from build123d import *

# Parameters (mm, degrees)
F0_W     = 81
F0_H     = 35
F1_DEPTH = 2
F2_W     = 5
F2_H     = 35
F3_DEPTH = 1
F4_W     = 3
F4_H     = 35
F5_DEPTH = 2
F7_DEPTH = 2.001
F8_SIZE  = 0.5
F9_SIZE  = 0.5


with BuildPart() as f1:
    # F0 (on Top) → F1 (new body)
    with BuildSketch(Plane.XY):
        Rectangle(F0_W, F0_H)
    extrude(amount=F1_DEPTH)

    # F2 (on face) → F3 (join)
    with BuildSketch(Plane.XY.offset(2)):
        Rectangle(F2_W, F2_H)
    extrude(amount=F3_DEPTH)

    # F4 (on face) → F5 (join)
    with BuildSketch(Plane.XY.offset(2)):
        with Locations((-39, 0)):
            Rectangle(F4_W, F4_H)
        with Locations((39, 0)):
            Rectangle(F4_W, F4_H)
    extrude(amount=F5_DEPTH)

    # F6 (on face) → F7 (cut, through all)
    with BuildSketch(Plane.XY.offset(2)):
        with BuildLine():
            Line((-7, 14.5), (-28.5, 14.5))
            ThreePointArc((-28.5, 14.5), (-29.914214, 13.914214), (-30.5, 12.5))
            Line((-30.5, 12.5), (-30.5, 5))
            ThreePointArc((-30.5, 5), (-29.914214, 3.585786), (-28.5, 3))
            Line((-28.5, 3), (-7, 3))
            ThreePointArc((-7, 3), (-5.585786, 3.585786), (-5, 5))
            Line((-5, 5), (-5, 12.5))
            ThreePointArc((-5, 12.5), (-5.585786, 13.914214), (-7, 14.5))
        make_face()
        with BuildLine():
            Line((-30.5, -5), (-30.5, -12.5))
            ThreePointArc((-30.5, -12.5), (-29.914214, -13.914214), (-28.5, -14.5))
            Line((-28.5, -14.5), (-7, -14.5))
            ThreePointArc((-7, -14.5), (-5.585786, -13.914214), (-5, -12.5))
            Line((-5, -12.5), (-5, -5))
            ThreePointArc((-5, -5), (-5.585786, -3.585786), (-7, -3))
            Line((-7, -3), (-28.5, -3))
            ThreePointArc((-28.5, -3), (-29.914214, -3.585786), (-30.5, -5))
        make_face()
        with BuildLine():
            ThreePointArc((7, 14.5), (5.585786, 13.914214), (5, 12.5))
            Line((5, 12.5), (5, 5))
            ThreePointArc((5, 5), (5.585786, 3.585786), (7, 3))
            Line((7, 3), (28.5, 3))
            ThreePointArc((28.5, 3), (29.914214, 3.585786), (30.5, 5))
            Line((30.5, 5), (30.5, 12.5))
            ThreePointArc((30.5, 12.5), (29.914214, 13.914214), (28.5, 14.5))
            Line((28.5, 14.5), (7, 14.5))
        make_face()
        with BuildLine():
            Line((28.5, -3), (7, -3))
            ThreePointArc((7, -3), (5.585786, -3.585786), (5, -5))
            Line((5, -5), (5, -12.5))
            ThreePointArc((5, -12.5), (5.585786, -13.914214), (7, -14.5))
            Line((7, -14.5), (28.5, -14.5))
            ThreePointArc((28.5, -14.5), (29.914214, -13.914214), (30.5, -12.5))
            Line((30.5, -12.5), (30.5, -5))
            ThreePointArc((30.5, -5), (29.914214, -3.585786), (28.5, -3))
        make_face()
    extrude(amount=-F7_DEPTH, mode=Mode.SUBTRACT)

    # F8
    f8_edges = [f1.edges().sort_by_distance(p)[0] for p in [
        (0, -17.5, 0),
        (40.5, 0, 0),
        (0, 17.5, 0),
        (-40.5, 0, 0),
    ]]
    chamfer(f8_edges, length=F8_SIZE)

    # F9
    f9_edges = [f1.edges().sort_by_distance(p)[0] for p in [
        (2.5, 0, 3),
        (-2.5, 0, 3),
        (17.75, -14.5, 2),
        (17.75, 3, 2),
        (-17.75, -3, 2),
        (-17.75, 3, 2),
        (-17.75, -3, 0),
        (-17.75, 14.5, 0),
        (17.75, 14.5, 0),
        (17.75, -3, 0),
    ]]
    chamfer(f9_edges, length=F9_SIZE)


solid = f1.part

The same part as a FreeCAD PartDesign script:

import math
import FreeCAD as App
import Part
import Sketcher
Q = App.Units.Quantity


def edges_at(feature, points):
    """Names of the edges that pass closest to the given points."""
    edges = feature.Shape.Edges
    near = lambda p: min(range(len(edges)), key=lambda i: edges[i].distToShape(Part.Vertex(*p))[0])
    return sorted({f"Edge{near(p) + 1}" for p in points})


def add_polygon(sketch, points):
    """Adds a closed chain of lines whose ends are joined by coincident constraints."""
    first, n = sketch.GeometryCount, len(points)
    for a, b in zip(points, points[1:] + points[:1]):
        sketch.addGeometry(Part.LineSegment(App.Vector(*a, 0), App.Vector(*b, 0)), False)
    for i in range(n):
        sketch.addConstraint(Sketcher.Constraint("Coincident", first + i, 2, first + (i + 1) % n, 1))

doc = App.newDocument("Part")
body = doc.addObject("PartDesign::Body", "Body")

# Sketch on XY plane
sketch1 = doc.addObject("Sketcher::SketchObject", "Sketch")
body.addObject(sketch1)
sketch1.AttachmentSupport = (doc.XY_Plane, [""])
sketch1.MapMode = "FlatFace"
add_polygon(sketch1, [(-40, 18), (-40, -18), (40, -18), (40, 18)])  # lines 0-3
sketch1.addConstraint(Sketcher.Constraint("Vertical", 0))
sketch1.addConstraint(Sketcher.Constraint("Horizontal", 1))
sketch1.addConstraint(Sketcher.Constraint("Vertical", 2))
sketch1.addConstraint(Sketcher.Constraint("Horizontal", 3))
sketch1.addConstraint(Sketcher.Constraint("Symmetric", 0, 2, 2, 2, -1, 1))
sketch1.addConstraint(Sketcher.Constraint("DistanceX", 1, 1, 1, 2, Q("81 mm")))
sketch1.addConstraint(Sketcher.Constraint("DistanceY", 0, 2, 0, 1, Q("35 mm")))
pad1 = doc.addObject("PartDesign::Pad", "Pad")
body.addObject(pad1)
pad1.Profile = sketch1
pad1.Length = 2

# Sketch on XY plane
sketch2 = doc.addObject("Sketcher::SketchObject", "Sketch001")
body.addObject(sketch2)
sketch2.AttachmentSupport = (doc.XY_Plane, [""])
sketch2.MapMode = "FlatFace"
sketch2.AttachmentOffset = App.Placement(App.Vector(0, 0, 2), App.Rotation())
add_polygon(sketch2, [(-2, 18), (-2, -18), (2, -18), (2, 18)])  # lines 0-3
sketch2.addConstraint(Sketcher.Constraint("Vertical", 0))
sketch2.addConstraint(Sketcher.Constraint("Horizontal", 1))
sketch2.addConstraint(Sketcher.Constraint("Vertical", 2))
sketch2.addConstraint(Sketcher.Constraint("Horizontal", 3))
sketch2.addConstraint(Sketcher.Constraint("Symmetric", 0, 2, 2, 2, -1, 1))
sketch2.addConstraint(Sketcher.Constraint("DistanceX", 1, 1, 1, 2, Q("5 mm")))
sketch2.addConstraint(Sketcher.Constraint("DistanceY", 0, 2, 0, 1, Q("35 mm")))
pad2 = doc.addObject("PartDesign::Pad", "Pad001")
body.addObject(pad2)
pad2.Profile = sketch2
pad2.Length = 1

# Sketch on XY plane
sketch3 = doc.addObject("Sketcher::SketchObject", "Sketch002")
body.addObject(sketch3)
sketch3.AttachmentSupport = (doc.XY_Plane, [""])
sketch3.MapMode = "FlatFace"
sketch3.AttachmentOffset = App.Placement(App.Vector(0, 0, 2), App.Rotation())
add_polygon(sketch3, [(-40.5, 17.5), (-40.5, -17.5), (-37.5, -17.5), (-37.5, 17.5)])  # lines 0-3
add_polygon(sketch3, [(37.5, 17.5), (37.5, -17.5), (40.5, -17.5), (40.5, 17.5)])  # lines 4-7
sketch3.addConstraint(Sketcher.Constraint("Vertical", 0))
sketch3.addConstraint(Sketcher.Constraint("Horizontal", 1))
sketch3.addConstraint(Sketcher.Constraint("Vertical", 2))
sketch3.addConstraint(Sketcher.Constraint("Horizontal", 3))
sketch3.addConstraint(Sketcher.Constraint("Vertical", 4))
sketch3.addConstraint(Sketcher.Constraint("Horizontal", 5))
sketch3.addConstraint(Sketcher.Constraint("Vertical", 6))
sketch3.addConstraint(Sketcher.Constraint("Horizontal", 7))
sketch3.addConstraint(Sketcher.Constraint("Symmetric", 2, 2, 4, 2, -1, 1))
sketch3.addConstraint(Sketcher.Constraint("Symmetric", 0, 2, 6, 2, -1, 1))
sketch3.addConstraint(Sketcher.Constraint("Horizontal", 1, 2, 4, 2))
sketch3.addConstraint(Sketcher.Constraint("DistanceX", 1, 1, 1, 2, Q("3 mm")))
sketch3.addConstraint(Sketcher.Constraint("DistanceY", 0, 2, 0, 1, Q("35 mm")))
sketch3.addConstraint(Sketcher.Constraint("DistanceX", 1, 2, 4, 2, Q("75 mm")))
pad3 = doc.addObject("PartDesign::Pad", "Pad002")
body.addObject(pad3)
pad3.Profile = sketch3
pad3.Length = 2

# Sketch on XY plane
sketch4 = doc.addObject("Sketcher::SketchObject", "Sketch003")
body.addObject(sketch4)
sketch4.AttachmentSupport = (doc.XY_Plane, [""])
sketch4.MapMode = "FlatFace"
sketch4.AttachmentOffset = App.Placement(App.Vector(0, 0, 2), App.Rotation())
sketch4.addGeometry(Part.LineSegment(App.Vector(-7, 14.5, 0), App.Vector(-28.5, 14.5, 0)), False)
sketch4.addGeometry(Part.ArcOfCircle(Part.Circle(App.Vector(-28.5, 12.5, 0), App.Vector(0, 0, 1), 2), math.radians(90), math.radians(180)), False)
sketch4.addGeometry(Part.LineSegment(App.Vector(-30.5, 12.5, 0), App.Vector(-30.5, 5, 0)), False)
sketch4.addGeometry(Part.ArcOfCircle(Part.Circle(App.Vector(-28.5, 5, 0), App.Vector(0, 0, 1), 2), math.radians(180), math.radians(270)), False)
sketch4.addGeometry(Part.LineSegment(App.Vector(-28.5, 3, 0), App.Vector(-7, 3, 0)), False)
sketch4.addGeometry(Part.ArcOfCircle(Part.Circle(App.Vector(-7, 5, 0), App.Vector(0, 0, 1), 2), math.radians(-90), math.radians(0)), False)
sketch4.addGeometry(Part.LineSegment(App.Vector(-5, 5, 0), App.Vector(-5, 12.5, 0)), False)
sketch4.addGeometry(Part.ArcOfCircle(Part.Circle(App.Vector(-7, 12.5, 0), App.Vector(0, 0, 1), 2), math.radians(0), math.radians(90)), False)
sketch4.addGeometry(Part.LineSegment(App.Vector(-30.5, -5, 0), App.Vector(-30.5, -12.5, 0)), False)
sketch4.addGeometry(Part.ArcOfCircle(Part.Circle(App.Vector(-28.5, -12.5, 0), App.Vector(0, 0, 1), 2), math.radians(180), math.radians(270)), False)
sketch4.addGeometry(Part.LineSegment(App.Vector(-28.5, -14.5, 0), App.Vector(-7, -14.5, 0)), False)
sketch4.addGeometry(Part.ArcOfCircle(Part.Circle(App.Vector(-7, -12.5, 0), App.Vector(0, 0, 1), 2), math.radians(-90), math.radians(0)), False)
sketch4.addGeometry(Part.LineSegment(App.Vector(-5, -12.5, 0), App.Vector(-5, -5, 0)), False)
sketch4.addGeometry(Part.ArcOfCircle(Part.Circle(App.Vector(-7, -5, 0), App.Vector(0, 0, 1), 2), math.radians(0), math.radians(90)), False)
sketch4.addGeometry(Part.LineSegment(App.Vector(-7, -3, 0), App.Vector(-28.5, -3, 0)), False)
sketch4.addGeometry(Part.ArcOfCircle(Part.Circle(App.Vector(-28.5, -5, 0), App.Vector(0, 0, 1), 2), math.radians(90), math.radians(180)), False)
sketch4.addGeometry(Part.ArcOfCircle(Part.Circle(App.Vector(7, 12.5, 0), App.Vector(0, 0, 1), 2), math.radians(90), math.radians(180)), False)
sketch4.addGeometry(Part.LineSegment(App.Vector(5, 12.5, 0), App.Vector(5, 5, 0)), False)
sketch4.addGeometry(Part.ArcOfCircle(Part.Circle(App.Vector(7, 5, 0), App.Vector(0, 0, 1), 2), math.radians(180), math.radians(270)), False)
sketch4.addGeometry(Part.LineSegment(App.Vector(7, 3, 0), App.Vector(28.5, 3, 0)), False)
sketch4.addGeometry(Part.ArcOfCircle(Part.Circle(App.Vector(28.5, 5, 0), App.Vector(0, 0, 1), 2), math.radians(-90), math.radians(0)), False)
sketch4.addGeometry(Part.LineSegment(App.Vector(30.5, 5, 0), App.Vector(30.5, 12.5, 0)), False)
sketch4.addGeometry(Part.ArcOfCircle(Part.Circle(App.Vector(28.5, 12.5, 0), App.Vector(0, 0, 1), 2), math.radians(0), math.radians(90)), False)
sketch4.addGeometry(Part.LineSegment(App.Vector(28.5, 14.5, 0), App.Vector(7, 14.5, 0)), False)
sketch4.addGeometry(Part.LineSegment(App.Vector(28.5, -3, 0), App.Vector(7, -3, 0)), False)
sketch4.addGeometry(Part.ArcOfCircle(Part.Circle(App.Vector(7, -5, 0), App.Vector(0, 0, 1), 2), math.radians(90), math.radians(180)), False)
sketch4.addGeometry(Part.LineSegment(App.Vector(5, -5, 0), App.Vector(5, -12.5, 0)), False)
sketch4.addGeometry(Part.ArcOfCircle(Part.Circle(App.Vector(7, -12.5, 0), App.Vector(0, 0, 1), 2), math.radians(180), math.radians(270)), False)
sketch4.addGeometry(Part.LineSegment(App.Vector(7, -14.5, 0), App.Vector(28.5, -14.5, 0)), False)
sketch4.addGeometry(Part.ArcOfCircle(Part.Circle(App.Vector(28.5, -12.5, 0), App.Vector(0, 0, 1), 2), math.radians(-90), math.radians(0)), False)
sketch4.addGeometry(Part.LineSegment(App.Vector(30.5, -12.5, 0), App.Vector(30.5, -5, 0)), False)
sketch4.addGeometry(Part.ArcOfCircle(Part.Circle(App.Vector(28.5, -5, 0), App.Vector(0, 0, 1), 2), math.radians(0), math.radians(90)), False)
sketch4.addConstraint(Sketcher.Constraint("Tangent", 0, 2, 1, 1))
sketch4.addConstraint(Sketcher.Constraint("Tangent", 1, 2, 2, 1))
sketch4.addConstraint(Sketcher.Constraint("Tangent", 2, 2, 3, 1))
sketch4.addConstraint(Sketcher.Constraint("Tangent", 3, 2, 4, 1))
sketch4.addConstraint(Sketcher.Constraint("Tangent", 4, 2, 5, 1))
sketch4.addConstraint(Sketcher.Constraint("Tangent", 5, 2, 6, 1))
sketch4.addConstraint(Sketcher.Constraint("Tangent", 6, 2, 7, 1))
sketch4.addConstraint(Sketcher.Constraint("Tangent", 7, 2, 0, 1))
sketch4.addConstraint(Sketcher.Constraint("Tangent", 8, 2, 9, 1))
sketch4.addConstraint(Sketcher.Constraint("Tangent", 9, 2, 10, 1))
sketch4.addConstraint(Sketcher.Constraint("Tangent", 10, 2, 11, 1))
sketch4.addConstraint(Sketcher.Constraint("Tangent", 11, 2, 12, 1))
sketch4.addConstraint(Sketcher.Constraint("Tangent", 12, 2, 13, 1))
sketch4.addConstraint(Sketcher.Constraint("Tangent", 13, 2, 14, 1))
sketch4.addConstraint(Sketcher.Constraint("Tangent", 14, 2, 15, 1))
sketch4.addConstraint(Sketcher.Constraint("Tangent", 15, 2, 8, 1))
sketch4.addConstraint(Sketcher.Constraint("Tangent", 16, 2, 17, 1))
sketch4.addConstraint(Sketcher.Constraint("Tangent", 17, 2, 18, 1))
sketch4.addConstraint(Sketcher.Constraint("Tangent", 18, 2, 19, 1))
sketch4.addConstraint(Sketcher.Constraint("Tangent", 19, 2, 20, 1))
sketch4.addConstraint(Sketcher.Constraint("Tangent", 20, 2, 21, 1))
sketch4.addConstraint(Sketcher.Constraint("Tangent", 21, 2, 22, 1))
sketch4.addConstraint(Sketcher.Constraint("Tangent", 22, 2, 23, 1))
sketch4.addConstraint(Sketcher.Constraint("Tangent", 23, 2, 16, 1))
sketch4.addConstraint(Sketcher.Constraint("Tangent", 24, 2, 25, 1))
sketch4.addConstraint(Sketcher.Constraint("Tangent", 25, 2, 26, 1))
sketch4.addConstraint(Sketcher.Constraint("Tangent", 26, 2, 27, 1))
sketch4.addConstraint(Sketcher.Constraint("Tangent", 27, 2, 28, 1))
sketch4.addConstraint(Sketcher.Constraint("Tangent", 28, 2, 29, 1))
sketch4.addConstraint(Sketcher.Constraint("Tangent", 29, 2, 30, 1))
sketch4.addConstraint(Sketcher.Constraint("Tangent", 30, 2, 31, 1))
sketch4.addConstraint(Sketcher.Constraint("Tangent", 31, 2, 24, 1))
sketch4.addConstraint(Sketcher.Constraint("Horizontal", 0))
sketch4.addConstraint(Sketcher.Constraint("Vertical", 2))
sketch4.addConstraint(Sketcher.Constraint("Horizontal", 4))
sketch4.addConstraint(Sketcher.Constraint("Vertical", 6))
sketch4.addConstraint(Sketcher.Constraint("Vertical", 8))
sketch4.addConstraint(Sketcher.Constraint("Horizontal", 10))
sketch4.addConstraint(Sketcher.Constraint("Vertical", 12))
sketch4.addConstraint(Sketcher.Constraint("Horizontal", 14))
sketch4.addConstraint(Sketcher.Constraint("Vertical", 17))
sketch4.addConstraint(Sketcher.Constraint("Horizontal", 19))
sketch4.addConstraint(Sketcher.Constraint("Vertical", 21))
sketch4.addConstraint(Sketcher.Constraint("Horizontal", 23))
sketch4.addConstraint(Sketcher.Constraint("Horizontal", 24))
sketch4.addConstraint(Sketcher.Constraint("Vertical", 26))
sketch4.addConstraint(Sketcher.Constraint("Horizontal", 28))
sketch4.addConstraint(Sketcher.Constraint("Vertical", 30))
sketch4.addConstraint(Sketcher.Constraint("Equal", 1, 3))
sketch4.addConstraint(Sketcher.Constraint("Equal", 3, 5))
sketch4.addConstraint(Sketcher.Constraint("Equal", 5, 7))
sketch4.addConstraint(Sketcher.Constraint("Equal", 7, 9))
sketch4.addConstraint(Sketcher.Constraint("Equal", 9, 11))
sketch4.addConstraint(Sketcher.Constraint("Equal", 11, 13))
sketch4.addConstraint(Sketcher.Constraint("Equal", 13, 15))
sketch4.addConstraint(Sketcher.Constraint("Equal", 15, 16))
sketch4.addConstraint(Sketcher.Constraint("Equal", 16, 18))
sketch4.addConstraint(Sketcher.Constraint("Equal", 18, 20))
sketch4.addConstraint(Sketcher.Constraint("Equal", 20, 22))
sketch4.addConstraint(Sketcher.Constraint("Equal", 22, 25))
sketch4.addConstraint(Sketcher.Constraint("Equal", 25, 27))
sketch4.addConstraint(Sketcher.Constraint("Equal", 27, 29))
sketch4.addConstraint(Sketcher.Constraint("Equal", 29, 31))
sketch4.addConstraint(Sketcher.Constraint("Symmetric", 11, 3, 16, 3, -1, 1))
sketch4.addConstraint(Sketcher.Constraint("Symmetric", 15, 3, 20, 3, -1, 1))
sketch4.addConstraint(Sketcher.Constraint("Symmetric", 5, 3, 25, 3, -1, 1))
sketch4.addConstraint(Sketcher.Constraint("Symmetric", 1, 3, 29, 3, -1, 1))
sketch4.addConstraint(Sketcher.Constraint("Symmetric", 7, 3, 16, 3, -2))
sketch4.addConstraint(Sketcher.Constraint("Symmetric", 3, 3, 20, 3, -2))
sketch4.addConstraint(Sketcher.Constraint("Radius", 1, Q("1.999999 mm")))
sketch4.addConstraint(Sketcher.Constraint("DistanceX", 0, 2, 0, 1, Q("21.5 mm")))
sketch4.addConstraint(Sketcher.Constraint("DistanceY", 2, 2, 2, 1, Q("7.5 mm")))
sketch4.addConstraint(Sketcher.Constraint("DistanceY", -1, 1, 3, 3, Q("4.999999 mm")))
sketch4.addConstraint(Sketcher.Constraint("DistanceX", 5, 3, -1, 1, Q("6.999999 mm")))
pocket1 = doc.addObject("PartDesign::Pocket", "Pocket")
body.addObject(pocket1)
pocket1.Profile = sketch4
pocket1.Type = "ThroughAll"
doc.recompute()

chamfer = doc.addObject("PartDesign::Chamfer", "Chamfer")
body.addObject(chamfer)
chamfer.Base = (pocket1, edges_at(pocket1, [
    (0, -17.5, 0),
    (40.5, 0, 0),
    (0, 17.5, 0),
    (-40.5, 0, 0),
]))
chamfer.Size = 0.5
doc.recompute()

chamfer2 = doc.addObject("PartDesign::Chamfer", "Chamfer001")
body.addObject(chamfer2)
chamfer2.Base = (chamfer, edges_at(chamfer, [
    (2.5, 0, 3),
    (-2.5, 0, 3),
    (17.75, -14.5, 2),
    (17.75, 3, 2),
    (-17.75, -3, 2),
    (-17.75, 3, 2),
    (-17.75, -3, 0),
    (-17.75, 14.5, 0),
    (17.75, 14.5, 0),
    (17.75, -3, 0),
]))
chamfer2.Size = 0.5

doc.recompute()
